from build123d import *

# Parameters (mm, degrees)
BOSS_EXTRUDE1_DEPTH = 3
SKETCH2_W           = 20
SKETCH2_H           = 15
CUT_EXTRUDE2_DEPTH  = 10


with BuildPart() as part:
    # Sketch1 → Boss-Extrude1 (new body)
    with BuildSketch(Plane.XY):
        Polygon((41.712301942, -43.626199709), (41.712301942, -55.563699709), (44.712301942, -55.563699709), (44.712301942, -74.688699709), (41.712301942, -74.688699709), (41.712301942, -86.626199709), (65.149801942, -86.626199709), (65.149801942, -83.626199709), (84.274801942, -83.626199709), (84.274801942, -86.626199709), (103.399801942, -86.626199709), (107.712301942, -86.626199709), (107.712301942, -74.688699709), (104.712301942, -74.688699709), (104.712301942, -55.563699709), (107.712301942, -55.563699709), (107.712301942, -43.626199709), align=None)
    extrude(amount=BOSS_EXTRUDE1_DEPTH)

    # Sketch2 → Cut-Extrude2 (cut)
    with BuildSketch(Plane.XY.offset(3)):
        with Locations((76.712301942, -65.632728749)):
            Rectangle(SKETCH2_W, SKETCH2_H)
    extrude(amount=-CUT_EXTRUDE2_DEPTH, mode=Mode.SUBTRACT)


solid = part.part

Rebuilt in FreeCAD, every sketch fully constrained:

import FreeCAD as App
import Part
import Sketcher
from FreeCAD import Vector

doc = App.newDocument("Part")
body = doc.addObject("PartDesign::Body", "Body")

sketch1 = body.newObject("Sketcher::SketchObject", "Sketch")
sketch1.AttachmentSupport = (doc.getObject("XY_Plane"), [""])
sketch1.MapMode = "FlatFace"
sketch1.addGeometry(Part.LineSegment(Vector(41.712302, -43.6262, 0), Vector(41.712302, -55.5637, 0)), False)
sketch1.addGeometry(Part.LineSegment(Vector(41.712302, -55.5637, 0), Vector(44.712302, -55.5637, 0)), False)
sketch1.addGeometry(Part.LineSegment(Vector(44.712302, -55.5637, 0), Vector(44.712302, -74.6887, 0)), False)
sketch1.addGeometry(Part.LineSegment(Vector(44.712302, -74.6887, 0), Vector(41.712302, -74.6887, 0)), False)
sketch1.addGeometry(Part.LineSegment(Vector(41.712302, -74.6887, 0), Vector(41.712302, -86.6262, 0)), False)
sketch1.addGeometry(Part.LineSegment(Vector(41.712302, -86.6262, 0), Vector(65.149802, -86.6262, 0)), False)
sketch1.addGeometry(Part.LineSegment(Vector(65.149802, -86.6262, 0), Vector(65.149802, -83.6262, 0)), False)
sketch1.addGeometry(Part.LineSegment(Vector(65.149802, -83.6262, 0), Vector(84.274802, -83.6262, 0)), False)
sketch1.addGeometry(Part.LineSegment(Vector(84.274802, -83.6262, 0), Vector(84.274802, -86.6262, 0)), False)
sketch1.addGeometry(Part.LineSegment(Vector(84.274802, -86.6262, 0), Vector(107.712302, -86.6262, 0)), False)
sketch1.addGeometry(Part.LineSegment(Vector(107.712302, -86.6262, 0), Vector(107.712302, -74.6887, 0)), False)
sketch1.addGeometry(Part.LineSegment(Vector(107.712302, -74.6887, 0), Vector(104.712302, -74.6887, 0)), False)
sketch1.addGeometry(Part.LineSegment(Vector(104.712302, -74.6887, 0), Vector(104.712302, -55.5637, 0)), False)
sketch1.addGeometry(Part.LineSegment(Vector(104.712302, -55.5637, 0), Vector(107.712302, -55.5637, 0)), False)
sketch1.addGeometry(Part.LineSegment(Vector(107.712302, -55.5637, 0), Vector(107.712302, -43.6262, 0)), False)
sketch1.addGeometry(Part.LineSegment(Vector(107.712302, -43.6262, 0), Vector(41.712302, -43.6262, 0)), False)
sketch1.addConstraint(Sketcher.Constraint("Coincident", 0, 2, 1, 1))
sketch1.addConstraint(Sketcher.Constraint("Coincident", 1, 2, 2, 1))
sketch1.addConstraint(Sketcher.Constraint("Coincident", 2, 2, 3, 1))
sketch1.addConstraint(Sketcher.Constraint("Coincident", 3, 2, 4, 1))
sketch1.addConstraint(Sketcher.Constraint("Coincident", 4, 2, 5, 1))
sketch1.addConstraint(Sketcher.Constraint("Coincident", 5, 2, 6, 1))
sketch1.addConstraint(Sketcher.Constraint("Coincident", 6, 2, 7, 1))
sketch1.addConstraint(Sketcher.Constraint("Coincident", 7, 2, 8, 1))
sketch1.addConstraint(Sketcher.Constraint("Coincident", 8, 2, 9, 1))
sketch1.addConstraint(Sketcher.Constraint("Coincident", 9, 2, 10, 1))
sketch1.addConstraint(Sketcher.Constraint("Coincident", 10, 2, 11, 1))
sketch1.addConstraint(Sketcher.Constraint("Coincident", 11, 2, 12, 1))
sketch1.addConstraint(Sketcher.Constraint("Coincident", 12, 2, 13, 1))
sketch1.addConstraint(Sketcher.Constraint("Coincident", 13, 2, 14, 1))
sketch1.addConstraint(Sketcher.Constraint("Coincident", 14, 2, 15, 1))
sketch1.addConstraint(Sketcher.Constraint("Coincident", 15, 2, 0, 1))
sketch1.addConstraint(Sketcher.Constraint("Vertical", 0))
sketch1.addConstraint(Sketcher.Constraint("Horizontal", 1))
sketch1.addConstraint(Sketcher.Constraint("Vertical", 2))
sketch1.addConstraint(Sketcher.Constraint("Horizontal", 3))
sketch1.addConstraint(Sketcher.Constraint("Vertical", 4))
sketch1.addConstraint(Sketcher.Constraint("Horizontal", 5))
sketch1.addConstraint(Sketcher.Constraint("Vertical", 6))
sketch1.addConstraint(Sketcher.Constraint("Horizontal", 7))
sketch1.addConstraint(Sketcher.Constraint("Vertical", 8))
sketch1.addConstraint(Sketcher.Constraint("Horizontal", 9))
sketch1.addConstraint(Sketcher.Constraint("Vertical", 10))
sketch1.addConstraint(Sketcher.Constraint("Horizontal", 11))
sketch1.addConstraint(Sketcher.Constraint("Vertical", 12))
sketch1.addConstraint(Sketcher.Constraint("Horizontal", 13))
sketch1.addConstraint(Sketcher.Constraint("Vertical", 14))
sketch1.addConstraint(Sketcher.Constraint("Horizontal", 15))
sketch1.addConstraint(Sketcher.Constraint("Horizontal", 5, 2, 8, 2))
sketch1.addConstraint(Sketcher.Constraint("Horizontal", 3, 2, 10, 2))
sketch1.addConstraint(Sketcher.Constraint("Horizontal", 1, 2, 12, 2))
sketch1.addConstraint(Sketcher.Constraint("Vertical", 0, 2, 3, 2))
sketch1.addConstraint(Sketcher.Constraint("Vertical", 10, 2, 13, 2))
sketch1.addConstraint(Sketcher.Constraint("Equal", 5, 9))
sketch1.addConstraint(Sketcher.Constraint("Equal", 3, 11))
sketch1.addConstraint(Sketcher.Constraint("Equal", 7, 2))
sketch1.addConstraint(Sketcher.Constraint("Equal", 0, 4))
sketch1.addConstraint(Sketcher.Constraint("Equal", 13, 6))
sketch1.addConstraint(Sketcher.Constraint("DistanceX", 1, 1, 1, 2, 3.0))
sketch1.addConstraint(Sketcher.Constraint("DistanceX", 15, 2, 15, 1, 66.0))
sketch1.addConstraint(Sketcher.Constraint("DistanceY", 9, 2, 14, 2, 43.0))
sketch1.addConstraint(Sketcher.Constraint("DistanceX", 7, 1, 7, 2, 19.125))
sketch1.addConstraint(Sketcher.Constraint("DistanceX", -1, 1, 0, 2, 41.712302))
sketch1.addConstraint(Sketcher.Constraint("DistanceY", 0, 2, -1, 1, 55.5637))
pad1 = body.newObject("PartDesign::Pad", "Pad")
pad1.Profile = sketch1
pad1.Length = 3

sketch2 = body.newObject("Sketcher::SketchObject", "Sketch001")
sketch2.AttachmentSupport = (doc.getObject("XY_Plane"), [""])
sketch2.MapMode = "FlatFace"
sketch2.AttachmentOffset = App.Placement(Vector(0, 0, 3), App.Rotation())
sketch2.addGeometry(Part.LineSegment(Vector(66.712302, -58.132729, 0), Vector(66.712302, -73.132729, 0)), False)
sketch2.addGeometry(Part.LineSegment(Vector(66.712302, -73.132729, 0), Vector(86.712302, -73.132729, 0)), False)
sketch2.addGeometry(Part.LineSegment(Vector(86.712302, -73.132729, 0), Vector(86.712302, -58.132729, 0)), False)
sketch2.addGeometry(Part.LineSegment(Vector(86.712302, -58.132729, 0), Vector(66.712302, -58.132729, 0)), False)
sketch2.addConstraint(Sketcher.Constraint("Coincident", 0, 2, 1, 1))
sketch2.addConstraint(Sketcher.Constraint("Coincident", 1, 2, 2, 1))
sketch2.addConstraint(Sketcher.Constraint("Coincident", 2, 2, 3, 1))
sketch2.addConstraint(Sketcher.Constraint("Coincident", 3, 2, 0, 1))
sketch2.addConstraint(Sketcher.Constraint("Vertical", 0))
sketch2.addConstraint(Sketcher.Constraint("Horizontal", 1))
sketch2.addConstraint(Sketcher.Constraint("Vertical", 2))
sketch2.addConstraint(Sketcher.Constraint("Horizontal", 3))
sketch2.addConstraint(Sketcher.Constraint("DistanceX", 1, 1, 1, 2, 20.0))
sketch2.addConstraint(Sketcher.Constraint("DistanceY", 0, 2, 0, 1, 15.0))
sketch2.addConstraint(Sketcher.Constraint("DistanceX", -1, 1, 0, 2, 66.712302))
sketch2.addConstraint(Sketcher.Constraint("DistanceY", 0, 2, -1, 1, 73.132729))
pocket1 = body.newObject("PartDesign::Pocket", "Pocket")
pocket1.Profile = sketch2
pocket1.Length = 10

doc.recompute()
